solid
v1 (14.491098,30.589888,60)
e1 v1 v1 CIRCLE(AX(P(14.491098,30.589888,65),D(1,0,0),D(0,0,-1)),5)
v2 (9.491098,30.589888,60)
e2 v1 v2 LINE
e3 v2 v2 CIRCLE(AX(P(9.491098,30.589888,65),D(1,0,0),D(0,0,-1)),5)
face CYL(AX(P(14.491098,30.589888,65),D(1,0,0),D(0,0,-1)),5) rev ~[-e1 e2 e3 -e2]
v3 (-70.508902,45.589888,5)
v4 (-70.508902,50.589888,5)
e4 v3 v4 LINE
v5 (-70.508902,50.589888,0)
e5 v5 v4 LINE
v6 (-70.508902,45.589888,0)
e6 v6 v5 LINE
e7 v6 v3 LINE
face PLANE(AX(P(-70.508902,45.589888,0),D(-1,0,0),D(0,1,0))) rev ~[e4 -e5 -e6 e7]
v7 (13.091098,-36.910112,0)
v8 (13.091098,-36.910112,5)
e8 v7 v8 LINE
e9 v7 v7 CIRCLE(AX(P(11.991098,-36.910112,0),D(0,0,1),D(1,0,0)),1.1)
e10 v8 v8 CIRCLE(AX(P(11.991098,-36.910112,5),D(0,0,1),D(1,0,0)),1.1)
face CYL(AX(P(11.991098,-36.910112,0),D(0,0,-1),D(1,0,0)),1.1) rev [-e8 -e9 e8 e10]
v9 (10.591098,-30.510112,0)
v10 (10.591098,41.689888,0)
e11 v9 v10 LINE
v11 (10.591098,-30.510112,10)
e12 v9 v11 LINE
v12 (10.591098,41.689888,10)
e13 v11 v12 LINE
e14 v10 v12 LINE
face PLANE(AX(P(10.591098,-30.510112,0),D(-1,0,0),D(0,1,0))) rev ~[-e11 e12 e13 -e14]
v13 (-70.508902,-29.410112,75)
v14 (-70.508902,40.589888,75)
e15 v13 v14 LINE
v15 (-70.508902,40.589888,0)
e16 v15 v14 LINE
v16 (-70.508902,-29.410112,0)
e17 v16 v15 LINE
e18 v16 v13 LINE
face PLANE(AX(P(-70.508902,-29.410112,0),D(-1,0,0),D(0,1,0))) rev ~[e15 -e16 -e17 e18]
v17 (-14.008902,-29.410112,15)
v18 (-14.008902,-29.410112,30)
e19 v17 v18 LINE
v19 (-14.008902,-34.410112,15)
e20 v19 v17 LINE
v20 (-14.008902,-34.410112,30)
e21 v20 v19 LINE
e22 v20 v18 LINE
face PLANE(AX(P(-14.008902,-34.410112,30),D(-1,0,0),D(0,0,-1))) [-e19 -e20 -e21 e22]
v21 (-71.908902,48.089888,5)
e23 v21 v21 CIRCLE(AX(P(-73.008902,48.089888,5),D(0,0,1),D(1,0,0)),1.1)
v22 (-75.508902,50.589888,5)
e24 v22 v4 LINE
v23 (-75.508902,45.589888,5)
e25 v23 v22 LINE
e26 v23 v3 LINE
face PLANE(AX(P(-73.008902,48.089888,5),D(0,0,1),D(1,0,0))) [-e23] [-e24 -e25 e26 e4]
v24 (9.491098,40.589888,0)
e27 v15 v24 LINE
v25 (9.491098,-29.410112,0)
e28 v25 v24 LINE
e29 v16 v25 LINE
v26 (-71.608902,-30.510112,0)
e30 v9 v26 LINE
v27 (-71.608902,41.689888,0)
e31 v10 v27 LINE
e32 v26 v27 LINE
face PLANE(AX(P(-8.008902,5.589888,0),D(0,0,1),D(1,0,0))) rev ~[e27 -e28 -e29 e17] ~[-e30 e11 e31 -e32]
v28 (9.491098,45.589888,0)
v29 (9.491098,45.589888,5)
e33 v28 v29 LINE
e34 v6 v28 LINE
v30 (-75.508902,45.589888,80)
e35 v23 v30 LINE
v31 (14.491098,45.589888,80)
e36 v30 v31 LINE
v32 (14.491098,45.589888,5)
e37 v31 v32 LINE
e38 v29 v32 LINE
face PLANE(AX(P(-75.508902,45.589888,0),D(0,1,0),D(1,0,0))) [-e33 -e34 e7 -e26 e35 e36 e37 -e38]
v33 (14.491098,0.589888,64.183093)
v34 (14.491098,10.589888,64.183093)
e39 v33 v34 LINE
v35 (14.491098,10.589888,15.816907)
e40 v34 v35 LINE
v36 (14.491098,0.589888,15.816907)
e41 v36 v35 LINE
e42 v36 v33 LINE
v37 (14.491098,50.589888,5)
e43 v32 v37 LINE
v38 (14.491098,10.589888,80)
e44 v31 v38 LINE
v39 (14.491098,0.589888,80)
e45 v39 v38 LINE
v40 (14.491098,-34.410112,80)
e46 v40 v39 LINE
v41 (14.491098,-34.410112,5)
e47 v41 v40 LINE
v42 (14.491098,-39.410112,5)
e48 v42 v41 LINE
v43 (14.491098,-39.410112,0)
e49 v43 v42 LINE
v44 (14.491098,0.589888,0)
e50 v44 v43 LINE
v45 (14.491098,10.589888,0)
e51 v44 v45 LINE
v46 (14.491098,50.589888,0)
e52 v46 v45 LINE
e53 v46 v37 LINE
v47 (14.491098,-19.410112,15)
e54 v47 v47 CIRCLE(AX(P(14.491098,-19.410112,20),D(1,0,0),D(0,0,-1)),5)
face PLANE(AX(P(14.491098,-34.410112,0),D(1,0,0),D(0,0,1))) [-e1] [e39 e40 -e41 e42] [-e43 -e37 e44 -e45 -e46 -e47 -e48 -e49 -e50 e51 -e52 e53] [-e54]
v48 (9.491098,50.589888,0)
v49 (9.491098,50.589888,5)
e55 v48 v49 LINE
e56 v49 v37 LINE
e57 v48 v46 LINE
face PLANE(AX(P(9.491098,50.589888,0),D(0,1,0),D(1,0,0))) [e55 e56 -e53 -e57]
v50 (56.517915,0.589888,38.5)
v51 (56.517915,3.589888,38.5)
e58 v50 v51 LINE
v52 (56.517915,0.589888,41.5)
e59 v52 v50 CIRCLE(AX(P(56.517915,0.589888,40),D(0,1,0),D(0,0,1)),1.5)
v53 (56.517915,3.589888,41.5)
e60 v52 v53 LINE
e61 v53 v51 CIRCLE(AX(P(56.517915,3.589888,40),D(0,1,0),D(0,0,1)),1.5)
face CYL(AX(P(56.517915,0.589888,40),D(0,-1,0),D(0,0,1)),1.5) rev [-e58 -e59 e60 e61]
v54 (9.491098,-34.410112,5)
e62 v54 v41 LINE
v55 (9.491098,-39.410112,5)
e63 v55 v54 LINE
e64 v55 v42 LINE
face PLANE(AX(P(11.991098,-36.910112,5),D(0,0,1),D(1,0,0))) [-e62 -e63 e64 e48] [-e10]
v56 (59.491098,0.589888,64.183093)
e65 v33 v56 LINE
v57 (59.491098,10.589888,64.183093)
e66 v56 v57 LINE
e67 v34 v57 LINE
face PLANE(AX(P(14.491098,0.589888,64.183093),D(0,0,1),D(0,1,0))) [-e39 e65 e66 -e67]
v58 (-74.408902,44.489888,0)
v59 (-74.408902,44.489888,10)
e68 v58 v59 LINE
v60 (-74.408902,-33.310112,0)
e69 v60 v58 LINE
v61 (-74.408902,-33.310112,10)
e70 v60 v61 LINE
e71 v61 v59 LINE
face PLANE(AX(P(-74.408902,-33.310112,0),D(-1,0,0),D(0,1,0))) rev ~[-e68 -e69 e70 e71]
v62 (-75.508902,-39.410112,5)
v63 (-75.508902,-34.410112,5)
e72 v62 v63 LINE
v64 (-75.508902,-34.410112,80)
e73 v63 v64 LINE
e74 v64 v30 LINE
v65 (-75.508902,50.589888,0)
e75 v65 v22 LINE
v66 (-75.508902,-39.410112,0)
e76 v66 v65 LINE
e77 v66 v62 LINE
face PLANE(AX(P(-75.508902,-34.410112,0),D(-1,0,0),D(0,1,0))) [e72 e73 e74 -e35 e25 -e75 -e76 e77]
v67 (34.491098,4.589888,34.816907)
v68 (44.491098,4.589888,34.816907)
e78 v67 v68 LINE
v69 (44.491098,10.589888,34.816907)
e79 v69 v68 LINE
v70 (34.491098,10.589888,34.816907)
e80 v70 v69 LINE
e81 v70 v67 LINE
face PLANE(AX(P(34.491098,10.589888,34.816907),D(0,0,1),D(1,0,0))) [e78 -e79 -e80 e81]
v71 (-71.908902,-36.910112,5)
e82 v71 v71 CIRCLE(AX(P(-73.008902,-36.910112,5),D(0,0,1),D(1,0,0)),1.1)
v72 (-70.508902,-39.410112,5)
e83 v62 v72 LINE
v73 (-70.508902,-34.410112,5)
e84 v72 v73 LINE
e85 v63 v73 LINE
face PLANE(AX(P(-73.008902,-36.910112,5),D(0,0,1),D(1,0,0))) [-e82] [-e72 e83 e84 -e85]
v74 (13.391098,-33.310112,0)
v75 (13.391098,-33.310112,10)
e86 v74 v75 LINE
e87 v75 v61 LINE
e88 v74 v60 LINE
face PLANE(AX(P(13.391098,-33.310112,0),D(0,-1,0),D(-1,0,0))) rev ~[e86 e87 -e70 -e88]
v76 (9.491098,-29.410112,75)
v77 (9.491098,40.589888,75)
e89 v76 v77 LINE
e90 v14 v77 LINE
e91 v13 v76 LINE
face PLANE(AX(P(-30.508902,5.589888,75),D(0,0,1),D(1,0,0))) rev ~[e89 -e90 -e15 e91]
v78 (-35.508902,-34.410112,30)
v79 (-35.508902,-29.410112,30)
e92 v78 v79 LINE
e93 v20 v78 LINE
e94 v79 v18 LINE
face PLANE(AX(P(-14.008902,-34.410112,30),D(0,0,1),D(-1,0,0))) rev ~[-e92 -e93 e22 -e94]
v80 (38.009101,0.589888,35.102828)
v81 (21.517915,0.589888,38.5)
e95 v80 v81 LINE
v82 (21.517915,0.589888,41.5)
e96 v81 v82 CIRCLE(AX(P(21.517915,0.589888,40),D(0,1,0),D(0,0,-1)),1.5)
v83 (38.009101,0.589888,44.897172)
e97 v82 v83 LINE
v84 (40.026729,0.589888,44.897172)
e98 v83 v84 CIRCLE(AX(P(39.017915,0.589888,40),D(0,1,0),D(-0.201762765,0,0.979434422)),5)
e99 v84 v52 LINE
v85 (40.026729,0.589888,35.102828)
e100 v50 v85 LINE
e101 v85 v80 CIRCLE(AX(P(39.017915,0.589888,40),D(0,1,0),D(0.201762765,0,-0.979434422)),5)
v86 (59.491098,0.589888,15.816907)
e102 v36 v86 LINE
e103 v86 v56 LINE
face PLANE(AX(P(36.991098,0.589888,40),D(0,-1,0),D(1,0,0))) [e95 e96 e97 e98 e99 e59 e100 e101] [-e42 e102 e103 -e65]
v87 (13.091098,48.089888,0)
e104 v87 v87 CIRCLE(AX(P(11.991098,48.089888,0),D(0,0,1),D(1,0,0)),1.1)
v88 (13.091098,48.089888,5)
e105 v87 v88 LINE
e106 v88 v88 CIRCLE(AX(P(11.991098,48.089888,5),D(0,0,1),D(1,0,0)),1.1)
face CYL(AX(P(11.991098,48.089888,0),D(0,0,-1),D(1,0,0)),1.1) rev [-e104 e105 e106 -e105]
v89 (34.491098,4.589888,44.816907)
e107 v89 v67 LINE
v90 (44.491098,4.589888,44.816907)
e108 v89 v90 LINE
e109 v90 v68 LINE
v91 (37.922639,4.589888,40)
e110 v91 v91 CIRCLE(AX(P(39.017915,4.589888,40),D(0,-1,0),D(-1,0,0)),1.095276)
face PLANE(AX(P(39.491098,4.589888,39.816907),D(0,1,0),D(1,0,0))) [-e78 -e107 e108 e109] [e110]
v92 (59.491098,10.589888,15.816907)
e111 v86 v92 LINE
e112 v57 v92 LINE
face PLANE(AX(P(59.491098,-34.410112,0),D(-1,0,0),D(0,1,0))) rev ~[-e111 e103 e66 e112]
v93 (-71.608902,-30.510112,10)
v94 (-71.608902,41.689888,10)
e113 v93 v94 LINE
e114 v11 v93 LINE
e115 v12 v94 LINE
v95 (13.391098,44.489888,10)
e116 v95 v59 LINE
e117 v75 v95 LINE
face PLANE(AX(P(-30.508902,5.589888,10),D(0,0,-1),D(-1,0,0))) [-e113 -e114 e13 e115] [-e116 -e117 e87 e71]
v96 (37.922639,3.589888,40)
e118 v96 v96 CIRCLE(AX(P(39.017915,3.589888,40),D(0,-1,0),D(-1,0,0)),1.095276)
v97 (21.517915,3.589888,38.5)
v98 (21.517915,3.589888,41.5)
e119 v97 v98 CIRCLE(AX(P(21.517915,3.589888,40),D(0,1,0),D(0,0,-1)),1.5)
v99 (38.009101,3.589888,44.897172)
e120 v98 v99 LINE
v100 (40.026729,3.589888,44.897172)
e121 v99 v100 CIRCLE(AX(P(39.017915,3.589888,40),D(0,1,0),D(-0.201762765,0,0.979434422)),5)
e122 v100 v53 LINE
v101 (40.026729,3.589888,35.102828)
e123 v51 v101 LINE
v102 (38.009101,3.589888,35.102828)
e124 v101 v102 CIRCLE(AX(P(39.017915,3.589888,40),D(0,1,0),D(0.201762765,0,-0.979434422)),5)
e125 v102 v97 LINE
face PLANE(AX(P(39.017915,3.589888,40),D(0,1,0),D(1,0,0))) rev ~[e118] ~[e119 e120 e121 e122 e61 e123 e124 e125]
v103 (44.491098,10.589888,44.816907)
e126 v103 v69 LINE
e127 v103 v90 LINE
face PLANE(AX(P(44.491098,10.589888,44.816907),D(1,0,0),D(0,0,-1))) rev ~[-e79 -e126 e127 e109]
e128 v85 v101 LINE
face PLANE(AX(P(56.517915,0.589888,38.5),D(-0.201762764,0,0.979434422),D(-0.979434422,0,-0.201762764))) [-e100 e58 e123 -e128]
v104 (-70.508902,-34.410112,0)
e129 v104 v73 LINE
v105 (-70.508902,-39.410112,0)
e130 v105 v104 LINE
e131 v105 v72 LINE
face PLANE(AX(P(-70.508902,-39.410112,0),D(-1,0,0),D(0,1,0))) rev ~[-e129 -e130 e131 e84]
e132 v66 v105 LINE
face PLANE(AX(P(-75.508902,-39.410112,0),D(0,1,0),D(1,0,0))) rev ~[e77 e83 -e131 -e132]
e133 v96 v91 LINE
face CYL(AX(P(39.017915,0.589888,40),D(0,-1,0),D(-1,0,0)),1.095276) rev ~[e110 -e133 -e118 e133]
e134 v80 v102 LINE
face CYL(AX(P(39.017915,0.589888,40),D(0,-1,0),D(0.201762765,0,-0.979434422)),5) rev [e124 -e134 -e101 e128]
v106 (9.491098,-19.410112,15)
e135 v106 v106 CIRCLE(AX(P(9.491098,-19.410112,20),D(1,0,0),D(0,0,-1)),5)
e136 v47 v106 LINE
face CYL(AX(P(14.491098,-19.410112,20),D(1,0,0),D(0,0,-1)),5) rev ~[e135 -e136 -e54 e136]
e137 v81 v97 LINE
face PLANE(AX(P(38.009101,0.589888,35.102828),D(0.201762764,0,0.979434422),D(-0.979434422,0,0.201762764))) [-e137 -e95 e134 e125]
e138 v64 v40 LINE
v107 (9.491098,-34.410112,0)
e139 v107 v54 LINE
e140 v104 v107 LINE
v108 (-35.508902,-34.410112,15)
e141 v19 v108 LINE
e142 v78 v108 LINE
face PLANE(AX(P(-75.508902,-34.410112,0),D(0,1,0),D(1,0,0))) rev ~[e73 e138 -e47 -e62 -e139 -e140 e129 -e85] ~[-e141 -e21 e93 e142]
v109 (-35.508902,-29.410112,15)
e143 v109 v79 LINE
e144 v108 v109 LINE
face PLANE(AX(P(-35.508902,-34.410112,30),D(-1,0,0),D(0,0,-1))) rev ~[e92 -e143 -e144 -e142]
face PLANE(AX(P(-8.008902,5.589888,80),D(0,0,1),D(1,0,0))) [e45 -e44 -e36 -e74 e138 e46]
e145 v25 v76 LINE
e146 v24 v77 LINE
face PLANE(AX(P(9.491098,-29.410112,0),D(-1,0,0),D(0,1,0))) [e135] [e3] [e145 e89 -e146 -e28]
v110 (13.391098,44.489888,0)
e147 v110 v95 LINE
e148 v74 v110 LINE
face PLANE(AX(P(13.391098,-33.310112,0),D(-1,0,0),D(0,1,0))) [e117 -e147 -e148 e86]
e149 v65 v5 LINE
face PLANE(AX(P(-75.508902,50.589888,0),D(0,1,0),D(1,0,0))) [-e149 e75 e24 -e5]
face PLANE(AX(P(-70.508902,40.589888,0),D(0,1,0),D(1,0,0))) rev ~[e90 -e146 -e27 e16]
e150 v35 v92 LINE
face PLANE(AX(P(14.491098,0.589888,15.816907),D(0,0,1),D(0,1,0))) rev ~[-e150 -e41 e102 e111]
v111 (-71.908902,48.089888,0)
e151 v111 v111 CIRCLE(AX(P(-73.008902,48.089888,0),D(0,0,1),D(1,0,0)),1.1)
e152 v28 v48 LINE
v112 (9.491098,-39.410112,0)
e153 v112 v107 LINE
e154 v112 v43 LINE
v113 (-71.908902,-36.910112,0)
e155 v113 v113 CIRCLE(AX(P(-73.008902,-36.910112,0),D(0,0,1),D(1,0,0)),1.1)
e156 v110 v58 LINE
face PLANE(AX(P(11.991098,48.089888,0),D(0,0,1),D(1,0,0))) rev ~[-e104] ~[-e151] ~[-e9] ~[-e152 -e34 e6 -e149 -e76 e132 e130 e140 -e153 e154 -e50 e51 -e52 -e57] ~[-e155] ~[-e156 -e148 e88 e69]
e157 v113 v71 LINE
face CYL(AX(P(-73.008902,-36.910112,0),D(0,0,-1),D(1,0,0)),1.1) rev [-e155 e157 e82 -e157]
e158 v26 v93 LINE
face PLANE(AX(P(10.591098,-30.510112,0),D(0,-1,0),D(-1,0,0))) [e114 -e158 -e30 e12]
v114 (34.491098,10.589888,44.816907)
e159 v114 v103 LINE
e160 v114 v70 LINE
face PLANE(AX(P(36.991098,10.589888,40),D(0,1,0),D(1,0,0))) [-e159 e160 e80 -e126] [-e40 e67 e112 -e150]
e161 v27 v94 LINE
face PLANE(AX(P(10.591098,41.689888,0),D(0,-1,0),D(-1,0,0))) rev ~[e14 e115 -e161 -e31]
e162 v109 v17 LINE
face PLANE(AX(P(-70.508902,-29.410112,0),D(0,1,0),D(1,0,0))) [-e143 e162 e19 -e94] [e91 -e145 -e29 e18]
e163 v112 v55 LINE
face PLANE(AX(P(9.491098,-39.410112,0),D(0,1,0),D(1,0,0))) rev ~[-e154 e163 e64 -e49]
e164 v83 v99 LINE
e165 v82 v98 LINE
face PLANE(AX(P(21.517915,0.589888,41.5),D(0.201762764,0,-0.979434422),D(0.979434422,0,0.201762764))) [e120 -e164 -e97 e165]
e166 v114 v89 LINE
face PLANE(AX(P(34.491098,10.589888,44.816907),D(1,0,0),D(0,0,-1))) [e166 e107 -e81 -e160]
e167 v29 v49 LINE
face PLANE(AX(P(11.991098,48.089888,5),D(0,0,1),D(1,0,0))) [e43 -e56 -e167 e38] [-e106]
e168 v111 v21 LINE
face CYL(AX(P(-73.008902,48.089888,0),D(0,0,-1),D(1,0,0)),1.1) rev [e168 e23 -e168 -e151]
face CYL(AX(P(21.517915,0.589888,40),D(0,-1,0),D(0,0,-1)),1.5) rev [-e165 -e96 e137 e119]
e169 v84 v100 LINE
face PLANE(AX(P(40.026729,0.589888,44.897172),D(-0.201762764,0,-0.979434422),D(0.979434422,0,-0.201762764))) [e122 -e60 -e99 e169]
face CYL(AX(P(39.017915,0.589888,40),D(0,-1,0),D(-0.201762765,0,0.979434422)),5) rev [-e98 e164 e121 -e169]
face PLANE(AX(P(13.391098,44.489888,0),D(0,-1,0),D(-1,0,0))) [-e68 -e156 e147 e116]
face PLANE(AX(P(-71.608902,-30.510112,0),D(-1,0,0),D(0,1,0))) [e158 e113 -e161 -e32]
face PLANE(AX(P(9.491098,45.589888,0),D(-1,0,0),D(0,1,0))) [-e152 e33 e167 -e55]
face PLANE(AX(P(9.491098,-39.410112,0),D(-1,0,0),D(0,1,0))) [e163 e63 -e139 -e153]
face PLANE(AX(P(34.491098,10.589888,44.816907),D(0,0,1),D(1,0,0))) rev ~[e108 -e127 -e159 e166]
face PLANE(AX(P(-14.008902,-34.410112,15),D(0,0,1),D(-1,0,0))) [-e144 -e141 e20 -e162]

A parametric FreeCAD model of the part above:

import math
import FreeCAD as App
import Part
import Sketcher

V = App.Vector
Q = App.Units.Quantity

doc = App.newDocument("Part")
params = doc.addObject("Spreadsheet::Sheet", "Params")
for row, (alias, value) in enumerate([
    ("sketch1_width", "135 mm"),
    ("sketch1_height", "80 mm"),
    ("pad1_length", "80 mm"),
    ("sketch2_width", "45 mm"),
    ("sketch2_height", "80 mm"),
    ("pocket1_length", "35 mm"),
    ("sketch3_width", "45 mm"),
    ("sketch3_height", "80 mm"),
    ("pocket2_length", "35 mm"),
    ("sketch4_width", "80 mm"),
    ("sketch4_height", "70 mm"),
    ("pocket3_length", "75 mm"),
    ("sketch5_width", "87.8 mm"),
    ("sketch5_width2", "82.2 mm"),
    ("sketch5_height", "77.8 mm"),
    ("sketch5_height2", "72.2 mm"),
    ("pocket4_length", "10 mm"),
    ("sketch6_diameter", "10 mm"),
    ("pocket5_length", "32.4 mm"),
    ("sketch7_height", "15 mm"),
    ("sketch7_width", "21.5 mm"),
    ("pocket6_length", "10 mm"),
    ("sketch8_width", "10 mm"),
    ("pocket7_length", "45 mm"),
    ("sketch9_radius", "5 mm"),
    ("sketch9_radius2", "1.5 mm"),
    ("pocket8_length", "3 mm"),
    ("sketch10_width", "10 mm"),
    ("pocket9_length", "6 mm"),
    ("pocket10_length", "7 mm"),
    ("sketch12_diameter", "2.2 mm"),
    ("sketch12_width", "5 mm"),
    ("pad2_length", "5 mm"),
], start=1):
    params.set(f"A{row}", alias)
    params.set(f"B{row}", "=" + value)
    params.setAlias(f"B{row}", alias)

body = doc.addObject("PartDesign::Body", "Body")

# Sketch on XY plane
sketch1 = body.newObject("Sketcher::SketchObject", "Sketch")
sketch1.AttachmentSupport = (doc.getObject("XY_Plane"), [""])
sketch1.MapMode = "FlatFace"
sketch1.addGeometry([
    Part.LineSegment(V(-75.508902, 45.589888, 0), V(-75.508902, -34.410112, 0)),
    Part.LineSegment(V(-75.508902, -34.410112, 0), V(59.491098, -34.410112, 0)),
    Part.LineSegment(V(59.491098, -34.410112, 0), V(59.491098, 45.589888, 0)),
    Part.LineSegment(V(59.491098, 45.589888, 0), V(-75.508902, 45.589888, 0)),
], False)
sketch1.addConstraint([
    Sketcher.Constraint("Coincident", 0, 2, 1, 1),
    Sketcher.Constraint("Coincident", 1, 2, 2, 1),
    Sketcher.Constraint("Coincident", 2, 2, 3, 1),
    Sketcher.Constraint("Coincident", 3, 2, 0, 1),
    Sketcher.Constraint("Vertical", 0),
    Sketcher.Constraint("Horizontal", 1),
    Sketcher.Constraint("Vertical", 2),
    Sketcher.Constraint("Horizontal", 3),
    Sketcher.Constraint("DistanceX", 1, 1, 1, 2, Q("135 mm")),
    Sketcher.Constraint("DistanceY", 0, 2, 0, 1, Q("80 mm")),
    Sketcher.Constraint("DistanceX", 0, 2, -1, 1, Q("75.508902 mm")),
    Sketcher.Constraint("DistanceY", 0, 2, -1, 1, Q("34.410112 mm")),
])
sketch1.setExpression("Constraints[8]", "Params.sketch1_width")
sketch1.setExpression("Constraints[9]", "Params.sketch1_height")
pad1 = body.newObject("PartDesign::Pad", "Pad")
pad1.Profile = sketch1
pad1.setExpression("Length", "Params.pad1_length")

# Sketch on XZ plane
sketch2 = body.newObject("Sketcher::SketchObject", "Sketch001")
sketch2.AttachmentSupport = (doc.getObject("XZ_Plane"), [""])
sketch2.MapMode = "FlatFace"
sketch2.AttachmentOffset = App.Placement(V(0, 0, -45.589888), App.Rotation())
sketch2.addGeometry([
    Part.LineSegment(V(14.491098, 0, 0), V(14.491098, 80, 0)),
    Part.LineSegment(V(14.491098, 80, 0), V(59.491098, 80, 0)),
    Part.LineSegment(V(59.491098, 80, 0), V(59.491098, 0, 0)),
    Part.LineSegment(V(59.491098, 0, 0), V(14.491098, 0, 0)),
], False)
sketch2.addConstraint([
    Sketcher.Constraint("Coincident", 0, 2, 1, 1),
    Sketcher.Constraint("Coincident", 1, 2, 2, 1),
    Sketcher.Constraint("Coincident", 2, 2, 3, 1),
    Sketcher.Constraint("Coincident", 3, 2, 0, 1),
    Sketcher.Constraint("Vertical", 0),
    Sketcher.Constraint("Horizontal", 1),
    Sketcher.Constraint("Vertical", 2),
    Sketcher.Constraint("Horizontal", 3),
    Sketcher.Constraint("PointOnObject", 2, 2, -1),
    Sketcher.Constraint("DistanceX", 1, 1, 1, 2, Q("45 mm")),
    Sketcher.Constraint("DistanceY", 0, 1, 0, 2, Q("80 mm")),
    Sketcher.Constraint("DistanceX", -1, 1, 0, 2, Q("14.491098 mm")),
])
sketch2.setExpression("Constraints[9]", "Params.sketch2_width")
sketch2.setExpression("Constraints[10]", "Params.sketch2_height")
pocket1 = body.newObject("PartDesign::Pocket", "Pocket")
pocket1.Profile = sketch2
pocket1.setExpression("Length", "Params.pocket1_length")
pocket1.Reversed = True

# Sketch on XZ plane
sketch3 = body.newObject("Sketcher::SketchObject", "Sketch002")
sketch3.AttachmentSupport = (doc.getObject("XZ_Plane"), [""])
sketch3.MapMode = "FlatFace"
sketch3.AttachmentOffset = App.Placement(V(0, 0, 34.410112), App.Rotation())
sketch3.addGeometry([
    Part.LineSegment(V(14.491098, 80, 0), V(14.491098, 0, 0)),
    Part.LineSegment(V(14.491098, 0, 0), V(59.491098, 0, 0)),
    Part.LineSegment(V(59.491098, 0, 0), V(59.491098, 80, 0)),
    Part.LineSegment(V(59.491098, 80, 0), V(14.491098, 80, 0)),
], False)
sketch3.addConstraint([
    Sketcher.Constraint("Coincident", 0, 2, 1, 1),
    Sketcher.Constraint("Coincident", 1, 2, 2, 1),
    Sketcher.Constraint("Coincident", 2, 2, 3, 1),
    Sketcher.Constraint("Coincident", 3, 2, 0, 1),
    Sketcher.Constraint("Vertical", 0),
    Sketcher.Constraint("Horizontal", 1),
    Sketcher.Constraint("Vertical", 2),
    Sketcher.Constraint("Horizontal", 3),
    Sketcher.Constraint("PointOnObject", 0, 2, -1),
    Sketcher.Constraint("DistanceX", 1, 1, 1, 2, Q("45 mm")),
    Sketcher.Constraint("DistanceY", 0, 2, 0, 1, Q("80 mm")),
    Sketcher.Constraint("DistanceX", -1, 1, 0, 2, Q("14.491098 mm")),
])
sketch3.setExpression("Constraints[9]", "Params.sketch3_width")
sketch3.setExpression("Constraints[10]", "Params.sketch3_height")
pocket2 = body.newObject("PartDesign::Pocket", "Pocket001")
pocket2.Profile = sketch3
pocket2.setExpression("Length", "Params.pocket2_length")

# Sketch on XY plane
sketch4 = body.newObject("Sketcher::SketchObject", "Sketch003")
sketch4.AttachmentSupport = (doc.getObject("XY_Plane"), [""])
sketch4.MapMode = "FlatFace"
sketch4.addGeometry([
    Part.LineSegment(V(-70.508902, 40.589888, 0), V(-70.508902, -29.410112, 0)),
    Part.LineSegment(V(-70.508902, -29.410112, 0), V(9.491098, -29.410112, 0)),
    Part.LineSegment(V(9.491098, -29.410112, 0), V(9.491098, 40.589888, 0)),
    Part.LineSegment(V(9.491098, 40.589888, 0), V(-70.508902, 40.589888, 0)),
], False)
sketch4.addConstraint([
    Sketcher.Constraint("Coincident", 0, 2, 1, 1),
    Sketcher.Constraint("Coincident", 1, 2, 2, 1),
    Sketcher.Constraint("Coincident", 2, 2, 3, 1),
    Sketcher.Constraint("Coincident", 3, 2, 0, 1),
    Sketcher.Constraint("Vertical", 0),
    Sketcher.Constraint("Horizontal", 1),
    Sketcher.Constraint("Vertical", 2),
    Sketcher.Constraint("Horizontal", 3),
    Sketcher.Constraint("DistanceX", 1, 1, 1, 2, Q("80 mm")),
    Sketcher.Constraint("DistanceY", 0, 2, 0, 1, Q("70 mm")),
    Sketcher.Constraint("DistanceX", 0, 2, -1, 1, Q("70.508902 mm")),
    Sketcher.Constraint("DistanceY", 0, 2, -1, 1, Q("29.410112 mm")),
])
sketch4.setExpression("Constraints[8]", "Params.sketch4_width")
sketch4.setExpression("Constraints[9]", "Params.sketch4_height")
pocket3 = body.newObject("PartDesign::Pocket", "Pocket002")
pocket3.Profile = sketch4
pocket3.setExpression("Length", "Params.pocket3_length")
pocket3.Reversed = True

# Sketch on XY plane
sketch5 = body.newObject("Sketcher::SketchObject", "Sketch004")
sketch5.AttachmentSupport = (doc.getObject("XY_Plane"), [""])
sketch5.MapMode = "FlatFace"
sketch5.addGeometry([
    Part.LineSegment(V(13.391098, 44.489888, 0), V(13.391098, -33.310112, 0)),  # 0
    Part.LineSegment(V(13.391098, -33.310112, 0), V(-74.408902, -33.310112, 0)),  # 1
    Part.LineSegment(V(-74.408902, -33.310112, 0), V(-74.408902, 44.489888, 0)),  # 2
    Part.LineSegment(V(-74.408902, 44.489888, 0), V(13.391098, 44.489888, 0)),  # 3
    Part.LineSegment(V(-71.608902, -30.510112, 0), V(10.591098, -30.510112, 0)),  # 4
    Part.LineSegment(V(10.591098, -30.510112, 0), V(10.591098, 41.689888, 0)),  # 5
    Part.LineSegment(V(10.591098, 41.689888, 0), V(-71.608902, 41.689888, 0)),  # 6
    Part.LineSegment(V(-71.608902, 41.689888, 0), V(-71.608902, -30.510112, 0)),  # 7
], False)
sketch5.addConstraint([
    Sketcher.Constraint("Coincident", 0, 2, 1, 1),
    Sketcher.Constraint("Coincident", 1, 2, 2, 1),
    Sketcher.Constraint("Coincident", 2, 2, 3, 1),
    Sketcher.Constraint("Coincident", 3, 2, 0, 1),
    Sketcher.Constraint("Coincident", 4, 2, 5, 1),
    Sketcher.Constraint("Coincident", 5, 2, 6, 1),
    Sketcher.Constraint("Coincident", 6, 2, 7, 1),
    Sketcher.Constraint("Coincident", 7, 2, 4, 1),
    Sketcher.Constraint("Vertical", 0),
    Sketcher.Constraint("Horizontal", 1),
    Sketcher.Constraint("Vertical", 2),
    Sketcher.Constraint("Horizontal", 3),
    Sketcher.Constraint("Horizontal", 4),
    Sketcher.Constraint("Vertical", 5),
    Sketcher.Constraint("Horizontal", 6),
    Sketcher.Constraint("Vertical", 7),
    Sketcher.Constraint("DistanceX", 1, 2, 1, 1, Q("87.8 mm")),
    Sketcher.Constraint("DistanceX", 4, 1, 4, 2, Q("82.2 mm")),
    Sketcher.Constraint("DistanceY", 0, 2, 0, 1, Q("77.8 mm")),
    Sketcher.Constraint("DistanceY", 5, 1, 5, 2, Q("72.2 mm")),
    Sketcher.Constraint("DistanceY", 4, 2, 3, 2, Q("75 mm")),
    Sketcher.Constraint("DistanceX", 1, 2, 4, 2, Q("85 mm")),
    Sketcher.Constraint("DistanceX", -1, 1, 0, 2, Q("13.391098 mm")),
    Sketcher.Constraint("DistanceY", 0, 2, -1, 1, Q("33.310112 mm")),
])
sketch5.setExpression("Constraints[16]", "Params.sketch5_width")
sketch5.setExpression("Constraints[17]", "Params.sketch5_width2")
sketch5.setExpression("Constraints[18]", "Params.sketch5_height")
sketch5.setExpression("Constraints[19]", "Params.sketch5_height2")
pocket4 = body.newObject("PartDesign::Pocket", "Pocket003")
pocket4.Profile = sketch5
pocket4.setExpression("Length", "Params.pocket4_length")
pocket4.Reversed = True

# Sketch on YZ plane
sketch6 = body.newObject("Sketcher::SketchObject", "Sketch005")
sketch6.AttachmentSupport = (doc.getObject("YZ_Plane"), [""])
sketch6.MapMode = "FlatFace"
sketch6.AttachmentOffset = App.Placement(V(0, 0, 14.491098), App.Rotation())
sketch6.addGeometry([
    Part.Circle(V(30.589888, 65, 0), V(0, 0, 1), 5),
    Part.Circle(V(-19.410112, 20, 0), V(0, 0, 1), 5),
], False)
sketch6.addConstraint([
    Sketcher.Constraint("Equal", 0, 1),
    Sketcher.Constraint("Diameter", 0, Q("10 mm")),
    Sketcher.Constraint("DistanceY", -1, 1, 0, 3, Q("65 mm")),
    Sketcher.Constraint("DistanceY", -1, 1, 1, 3, Q("20 mm")),
    Sketcher.Constraint("DistanceX", 1, 3, 0, 3, Q("50 mm")),
    Sketcher.Constraint("DistanceX", -1, 1, 0, 3, Q("30.589888 mm")),
])
sketch6.setExpression("Constraints[1]", "Params.sketch6_diameter")
pocket5 = body.newObject("PartDesign::Pocket", "Pocket004")
pocket5.Profile = sketch6
pocket5.setExpression("Length", "Params.pocket5_length")

# Sketch on XZ plane
sketch7 = body.newObject("Sketcher::SketchObject", "Sketch006")
sketch7.AttachmentSupport = (doc.getObject("XZ_Plane"), [""])
sketch7.MapMode = "FlatFace"
sketch7.AttachmentOffset = App.Placement(V(0, 0, 34.410112), App.Rotation())
sketch7.addGeometry([
    Part.LineSegment(V(-14.008902, 15, 0), V(-14.008902, 30, 0)),
    Part.LineSegment(V(-14.008902, 30, 0), V(-35.508902, 30, 0)),
    Part.LineSegment(V(-35.508902, 30, 0), V(-35.508902, 15, 0)),
    Part.LineSegment(V(-35.508902, 15, 0), V(-14.008902, 15, 0)),
], False)
sketch7.addConstraint([
    Sketcher.Constraint("Coincident", 0, 2, 1, 1),
    Sketcher.Constraint("Coincident", 1, 2, 2, 1),
    Sketcher.Constraint("Coincident", 2, 2, 3, 1),
    Sketcher.Constraint("Coincident", 3, 2, 0, 1),
    Sketcher.Constraint("Vertical", 0),
    Sketcher.Constraint("Horizontal", 1),
    Sketcher.Constraint("Vertical", 2),
    Sketcher.Constraint("Horizontal", 3),
    Sketcher.Constraint("DistanceY", 0, 1, 0, 2, Q("15 mm")),
    Sketcher.Constraint("DistanceX", 1, 2, 1, 1, Q("21.5 mm")),
    Sketcher.Constraint("DistanceY", -1, 1, 0, 2, Q("30 mm")),
    Sketcher.Constraint("DistanceX", 0, 2, -1, 1, Q("14.008902 mm")),
])
sketch7.setExpression("Constraints[8]", "Params.sketch7_height")
sketch7.setExpression("Constraints[9]", "Params.sketch7_width")
pocket6 = body.newObject("PartDesign::Pocket", "Pocket005")
pocket6.Profile = sketch7
pocket6.setExpression("Length", "Params.pocket6_length")

# Sketch on YZ plane
sketch8 = body.newObject("Sketcher::SketchObject", "Sketch007")
sketch8.AttachmentSupport = (doc.getObject("YZ_Plane"), [""])
sketch8.MapMode = "FlatFace"
sketch8.AttachmentOffset = App.Placement(V(0, 0, 14.491098), App.Rotation())
sketch8.addGeometry([
    Part.LineSegment(V(10.589888, 80, 0), V(0.589888, 80, 0)),  # 0
    Part.LineSegment(V(0.589888, 80, 0), V(0.589888, 64.183093, 0)),  # 1
    Part.LineSegment(V(0.589888, 64.183093, 0), V(10.589888, 64.183093, 0)),  # 2
    Part.LineSegment(V(10.589888, 64.183093, 0), V(10.589888, 80, 0)),  # 3
    Part.LineSegment(V(10.589888, 15.816907, 0), V(0.589888, 15.816907, 0)),  # 4
    Part.LineSegment(V(0.589888, 15.816907, 0), V(0.589888, 0, 0)),  # 5
    Part.LineSegment(V(0.589888, 0, 0), V(10.589888, 0, 0)),  # 6
    Part.LineSegment(V(10.589888, 0, 0), V(10.589888, 15.816907, 0)),  # 7
], False)
sketch8.addConstraint([
    Sketcher.Constraint("Coincident", 0, 2, 1, 1),
    Sketcher.Constraint("Coincident", 1, 2, 2, 1),
    Sketcher.Constraint("Coincident", 2, 2, 3, 1),
    Sketcher.Constraint("Coincident", 3, 2, 0, 1),
    Sketcher.Constraint("Coincident", 4, 2, 5, 1),
    Sketcher.Constraint("Coincident", 5, 2, 6, 1),
    Sketcher.Constraint("Coincident", 6, 2, 7, 1),
    Sketcher.Constraint("Coincident", 7, 2, 4, 1),
    Sketcher.Constraint("Horizontal", 0),
    Sketcher.Constraint("Vertical", 1),
    Sketcher.Constraint("Horizontal", 2),
    Sketcher.Constraint("Vertical", 3),
    Sketcher.Constraint("Horizontal", 4),
    Sketcher.Constraint("Vertical", 5),
    Sketcher.Constraint("Horizontal", 6),
    Sketcher.Constraint("Vertical", 7),
    Sketcher.Constraint("PointOnObject", 5, 2, -1),
    Sketcher.Constraint("Vertical", 1, 2, 4, 2),
    Sketcher.Constraint("Vertical", 3, 2, 6, 2),
    Sketcher.Constraint("Equal", 3, 5),
    Sketcher.Constraint("DistanceX", 0, 2, 0, 1, Q("10 mm")),
    Sketcher.Constraint("DistanceY", -1, 1, 0, 2, Q("80 mm")),
    Sketcher.Constraint("DistanceY", 1, 2, 1, 1, Q("15.816907 mm")),
    Sketcher.Constraint("DistanceX", -1, 1, 0, 2, Q("0.589888 mm")),
])
sketch8.setExpression("Constraints[20]", "Params.sketch8_width")
pocket7 = body.newObject("PartDesign::Pocket", "Pocket006")
pocket7.Profile = sketch8
pocket7.setExpression("Length", "Params.pocket7_length")
pocket7.Reversed = True

# Sketch on XZ plane
sketch9 = body.newObject("Sketcher::SketchObject", "Sketch008")
sketch9.AttachmentSupport = (doc.getObject("XZ_Plane"), [""])
sketch9.MapMode = "FlatFace"
sketch9.AttachmentOffset = App.Placement(V(0, 0, -0.589888), App.Rotation())
sketch9.addGeometry([
    Part.LineSegment(V(21.517915, 38.5, 0), V(38.009101, 35.102828, 0)),  # 0
    Part.ArcOfCircle(Part.Circle(V(39.017915, 40, 0), V(0, 0, 1), 5), math.radians(-101.64006), math.radians(-78.35994)),  # 1
    Part.LineSegment(V(40.026729, 35.102828, 0), V(56.517915, 38.5, 0)),  # 2
    Part.ArcOfCircle(Part.Circle(V(56.517915, 40, 0), V(0, 0, 1), 1.5), math.radians(-90), math.radians(90)),  # 3
    Part.LineSegment(V(56.517915, 41.5, 0), V(40.026729, 44.897172, 0)),  # 4
    Part.ArcOfCircle(Part.Circle(V(39.017915, 40, 0), V(0, 0, 1), 5), math.radians(78.35994), math.radians(101.64006)),  # 5
    Part.LineSegment(V(38.009101, 44.897172, 0), V(21.517915, 41.5, 0)),  # 6
    Part.ArcOfCircle(Part.Circle(V(21.517915, 40, 0), V(0, 0, 1), 1.5), math.radians(90), math.radians(270)),  # 7
], False)
sketch9.addConstraint([
    Sketcher.Constraint("Tangent", 0, 2, 1, 1),
    Sketcher.Constraint("Tangent", 1, 2, 2, 1),
    Sketcher.Constraint("Coincident", 2, 2, 3, 1),
    Sketcher.Constraint("Coincident", 3, 2, 4, 1),
    Sketcher.Constraint("Tangent", 4, 2, 5, 1),
    Sketcher.Constraint("Tangent", 5, 2, 6, 1),
    Sketcher.Constraint("Coincident", 6, 2, 7, 1),
    Sketcher.Constraint("Coincident", 7, 2, 0, 1),
    Sketcher.Constraint("Coincident", 5, 3, 1, 3),
    Sketcher.Constraint("Equal", 1, 5),
    Sketcher.Constraint("Equal", 3, 7),
    Sketcher.Constraint("Parallel", 0, 4),
    Sketcher.Constraint("Parallel", 2, 6),
    Sketcher.Constraint("Horizontal", 1, 3, 3, 3),
    Sketcher.Constraint("Horizontal", 5, 3, 7, 3),
    Sketcher.Constraint("Horizontal", 0, 2, 1, 2),
    Sketcher.Constraint("Vertical", 3, 3, 2, 2),
    Sketcher.Constraint("Vertical", 7, 3, 6, 2),
    Sketcher.Constraint("Radius", 1, Q("5 mm")),
    Sketcher.Constraint("Radius", 3, Q("1.5 mm")),
    Sketcher.Constraint("DistanceY", -1, 1, 1, 3, Q("40 mm")),
    Sketcher.Constraint("DistanceX", 7, 3, 3, 3, Q("35 mm")),
    Sketcher.Constraint("DistanceX", -1, 1, 0, 2, Q("38.009101 mm")),
])
sketch9.setExpression("Constraints[18]", "Params.sketch9_radius")
sketch9.setExpression("Constraints[19]", "Params.sketch9_radius2")
pocket8 = body.newObject("PartDesign::Pocket", "Pocket007")
pocket8.Profile = sketch9
pocket8.setExpression("Length", "Params.pocket8_length")

# Sketch on XZ plane
sketch10 = body.newObject("Sketcher::SketchObject", "Sketch009")
sketch10.AttachmentSupport = (doc.getObject("XZ_Plane"), [""])
sketch10.MapMode = "FlatFace"
sketch10.AttachmentOffset = App.Placement(V(0, 0, -10.589888), App.Rotation())
sketch10.addGeometry([
    Part.LineSegment(V(34.491098, 34.816907, 0), V(34.491098, 44.816907, 0)),
    Part.LineSegment(V(34.491098, 44.816907, 0), V(44.491098, 44.816907, 0)),
    Part.LineSegment(V(44.491098, 44.816907, 0), V(44.491098, 34.816907, 0)),
    Part.LineSegment(V(44.491098, 34.816907, 0), V(34.491098, 34.816907, 0)),
], False)
sketch10.addConstraint([
    Sketcher.Constraint("Coincident", 0, 2, 1, 1),
    Sketcher.Constraint("Coincident", 1, 2, 2, 1),
    Sketcher.Constraint("Coincident", 2, 2, 3, 1),
    Sketcher.Constraint("Coincident", 3, 2, 0, 1),
    Sketcher.Constraint("Vertical", 0),
    Sketcher.Constraint("Horizontal", 1),
    Sketcher.Constraint("Vertical", 2),
    Sketcher.Constraint("Horizontal", 3),
    Sketcher.Constraint("Equal", 3, 0),
    Sketcher.Constraint("DistanceX", 1, 1, 1, 2, Q("10 mm")),
    Sketcher.Constraint("DistanceX", -1, 1, 0, 2, Q("34.491098 mm")),
    Sketcher.Constraint("DistanceY", -1, 1, 0, 2, Q("44.816907 mm")),
])
sketch10.setExpression("Constraints[9]", "Params.sketch10_width")
pocket9 = body.newObject("PartDesign::Pocket", "Pocket008")
pocket9.Profile = sketch10
pocket9.setExpression("Length", "Params.pocket9_length")
pocket9.Reversed = True

# Sketch on XZ plane
sketch11 = body.newObject("Sketcher::SketchObject", "Sketch010")
sketch11.AttachmentSupport = (doc.getObject("XZ_Plane"), [""])
sketch11.MapMode = "FlatFace"
sketch11.AttachmentOffset = App.Placement(V(0, 0, -0.589888), App.Rotation())
sketch11.addGeometry(Part.Circle(V(39.017915, 40, 0), V(0, 0, 1), 1.095276), False)
sketch11.addConstraint([
    Sketcher.Constraint("DistanceY", -1, 1, 0, 3, Q("40 mm")),
    Sketcher.Constraint("Diameter", 0, Q("2.190552 mm")),
    Sketcher.Constraint("DistanceX", -1, 1, 0, 3, Q("39.017915 mm")),
])
pocket10 = body.newObject("PartDesign::Pocket", "Pocket009")
pocket10.Profile = sketch11
pocket10.setExpression("Length", "Params.pocket10_length")

# Sketch on XY plane
sketch12 = body.newObject("Sketcher::SketchObject", "Sketch011")
sketch12.AttachmentSupport = (doc.getObject("XY_Plane"), [""])
sketch12.MapMode = "FlatFace"
sketch12.addGeometry([
    Part.LineSegment(V(9.491098, 50.589888, 0), V(9.491098, 45.589888, 0)),  # 0
    Part.LineSegment(V(9.491098, 45.589888, 0), V(14.491098, 45.589888, 0)),  # 1
    Part.LineSegment(V(14.491098, 45.589888, 0), V(14.491098, 50.589888, 0)),  # 2
    Part.LineSegment(V(14.491098, 50.589888, 0), V(9.491098, 50.589888, 0)),  # 3
    Part.Circle(V(11.991098, 48.089888, 0), V(0, 0, 1), 1.1),  # 4
    Part.LineSegment(V(-75.508902, 50.589888, 0), V(-75.508902, 45.589888, 0)),  # 5
    Part.LineSegment(V(-75.508902, 45.589888, 0), V(-70.508902, 45.589888, 0)),  # 6
    Part.LineSegment(V(-70.508902, 45.589888, 0), V(-70.508902, 50.589888, 0)),  # 7
    Part.LineSegment(V(-70.508902, 50.589888, 0), V(-75.508902, 50.589888, 0)),  # 8
    Part.Circle(V(-73.008902, 48.089888, 0), V(0, 0, 1), 1.1),  # 9
    Part.LineSegment(V(-75.508902, -34.410112, 0), V(-75.508902, -39.410112, 0)),  # 10
    Part.LineSegment(V(-75.508902, -39.410112, 0), V(-70.508902, -39.410112, 0)),  # 11
    Part.LineSegment(V(-70.508902, -39.410112, 0), V(-70.508902, -34.410112, 0)),  # 12
    Part.LineSegment(V(-70.508902, -34.410112, 0), V(-75.508902, -34.410112, 0)),  # 13
    Part.Circle(V(-73.008902, -36.910112, 0), V(0, 0, 1), 1.1),  # 14
    Part.LineSegment(V(9.491098, -34.410112, 0), V(9.491098, -39.410112, 0)),  # 15
    Part.LineSegment(V(9.491098, -39.410112, 0), V(14.491098, -39.410112, 0)),  # 16
    Part.LineSegment(V(14.491098, -39.410112, 0), V(14.491098, -34.410112, 0)),  # 17
    Part.LineSegment(V(14.491098, -34.410112, 0), V(9.491098, -34.410112, 0)),  # 18
    Part.Circle(V(11.991098, -36.910112, 0), V(0, 0, 1), 1.1),  # 19
], False)
sketch12.addConstraint([
    Sketcher.Constraint("Coincident", 0, 2, 1, 1),
    Sketcher.Constraint("Coincident", 1, 2, 2, 1),
    Sketcher.Constraint("Coincident", 2, 2, 3, 1),
    Sketcher.Constraint("Coincident", 3, 2, 0, 1),
    Sketcher.Constraint("Coincident", 5, 2, 6, 1),
    Sketcher.Constraint("Coincident", 6, 2, 7, 1),
    Sketcher.Constraint("Coincident", 7, 2, 8, 1),
    Sketcher.Constraint("Coincident", 8, 2, 5, 1),
    Sketcher.Constraint("Coincident", 10, 2, 11, 1),
    Sketcher.Constraint("Coincident", 11, 2, 12, 1),
    Sketcher.Constraint("Coincident", 12, 2, 13, 1),
    Sketcher.Constraint("Coincident", 13, 2, 10, 1),
    Sketcher.Constraint("Coincident", 15, 2, 16, 1),
    Sketcher.Constraint("Coincident", 16, 2, 17, 1),
    Sketcher.Constraint("Coincident", 17, 2, 18, 1),
    Sketcher.Constraint("Coincident", 18, 2, 15, 1),
    Sketcher.Constraint("Vertical", 0),
    Sketcher.Constraint("Horizontal", 1),
    Sketcher.Constraint("Vertical", 2),
    Sketcher.Constraint("Horizontal", 3),
    Sketcher.Constraint("Vertical", 5),
    Sketcher.Constraint("Horizontal", 6),
    Sketcher.Constraint("Vertical", 7),
    Sketcher.Constraint("Horizontal", 8),
    Sketcher.Constraint("Vertical", 10),
    Sketcher.Constraint("Horizontal", 11),
    Sketcher.Constraint("Vertical", 12),
    Sketcher.Constraint("Horizontal", 13),
    Sketcher.Constraint("Vertical", 15),
    Sketcher.Constraint("Horizontal", 16),
    Sketcher.Constraint("Vertical", 17),
    Sketcher.Constraint("Horizontal", 18),
    Sketcher.Constraint("Equal", 4, 9),
    Sketcher.Constraint("Equal", 9, 14),
    Sketcher.Constraint("Equal", 14, 19),
    Sketcher.Constraint("Horizontal", 4, 3, 9, 3),
    Sketcher.Constraint("Horizontal", 14, 3, 19, 3),
    Sketcher.Constraint("Horizontal", 1, 2, 5, 2),
    Sketcher.Constraint("Horizontal", 3, 2, 7, 2),
    Sketcher.Constraint("Horizontal", 11, 2, 15, 2),
    Sketcher.Constraint("Horizontal", 13, 2, 17, 2),
    Sketcher.Constraint("Vertical", 9, 3, 14, 3),
    Sketcher.Constraint("Vertical", 4, 3, 19, 3),
    Sketcher.Constraint("Vertical", 8, 2, 10, 2),
    Sketcher.Constraint("Vertical", 7, 2, 11, 2),
    Sketcher.Constraint("Vertical", 3, 2, 15, 2),
    Sketcher.Constraint("Vertical", 2, 2, 16, 2),
    Sketcher.Constraint("Equal", 3, 6),
    Sketcher.Constraint("Equal", 18, 0),
    Sketcher.Constraint("Equal", 7, 10),
    Sketcher.Constraint("Diameter", 4, Q("2.2 mm")),
    Sketcher.Constraint("DistanceX", 1, 1, 1, 2, Q("5 mm")),
    Sketcher.Constraint("DistanceX", 9, 3, 4, 3, Q("85 mm")),
    Sketcher.Constraint("DistanceY", 14, 3, 9, 3, Q("85 mm")),
    Sketcher.Constraint("DistanceX", 5, 2, 0, 2, Q("85 mm")),
    Sketcher.Constraint("DistanceY", 10, 2, 5, 2, Q("85 mm")),
    Sketcher.Constraint("DistanceX", 0, 2, 4, 3, Q("2.5 mm")),
    Sketcher.Constraint("DistanceY", 0, 2, 4, 3, Q("2.5 mm")),
    Sketcher.Constraint("DistanceX", -1, 1, 4, 3, Q("11.991098 mm")),
    Sketcher.Constraint("DistanceY", -1, 1, 4, 3, Q("48.089888 mm")),
])
sketch12.setExpression("Constraints[50]", "Params.sketch12_diameter")
sketch12.setExpression("Constraints[51]", "Params.sketch12_width")
pad2 = body.newObject("PartDesign::Pad", "Pad001")
pad2.Profile = sketch12
pad2.setExpression("Length", "Params.pad2_length")

doc.recompute()
